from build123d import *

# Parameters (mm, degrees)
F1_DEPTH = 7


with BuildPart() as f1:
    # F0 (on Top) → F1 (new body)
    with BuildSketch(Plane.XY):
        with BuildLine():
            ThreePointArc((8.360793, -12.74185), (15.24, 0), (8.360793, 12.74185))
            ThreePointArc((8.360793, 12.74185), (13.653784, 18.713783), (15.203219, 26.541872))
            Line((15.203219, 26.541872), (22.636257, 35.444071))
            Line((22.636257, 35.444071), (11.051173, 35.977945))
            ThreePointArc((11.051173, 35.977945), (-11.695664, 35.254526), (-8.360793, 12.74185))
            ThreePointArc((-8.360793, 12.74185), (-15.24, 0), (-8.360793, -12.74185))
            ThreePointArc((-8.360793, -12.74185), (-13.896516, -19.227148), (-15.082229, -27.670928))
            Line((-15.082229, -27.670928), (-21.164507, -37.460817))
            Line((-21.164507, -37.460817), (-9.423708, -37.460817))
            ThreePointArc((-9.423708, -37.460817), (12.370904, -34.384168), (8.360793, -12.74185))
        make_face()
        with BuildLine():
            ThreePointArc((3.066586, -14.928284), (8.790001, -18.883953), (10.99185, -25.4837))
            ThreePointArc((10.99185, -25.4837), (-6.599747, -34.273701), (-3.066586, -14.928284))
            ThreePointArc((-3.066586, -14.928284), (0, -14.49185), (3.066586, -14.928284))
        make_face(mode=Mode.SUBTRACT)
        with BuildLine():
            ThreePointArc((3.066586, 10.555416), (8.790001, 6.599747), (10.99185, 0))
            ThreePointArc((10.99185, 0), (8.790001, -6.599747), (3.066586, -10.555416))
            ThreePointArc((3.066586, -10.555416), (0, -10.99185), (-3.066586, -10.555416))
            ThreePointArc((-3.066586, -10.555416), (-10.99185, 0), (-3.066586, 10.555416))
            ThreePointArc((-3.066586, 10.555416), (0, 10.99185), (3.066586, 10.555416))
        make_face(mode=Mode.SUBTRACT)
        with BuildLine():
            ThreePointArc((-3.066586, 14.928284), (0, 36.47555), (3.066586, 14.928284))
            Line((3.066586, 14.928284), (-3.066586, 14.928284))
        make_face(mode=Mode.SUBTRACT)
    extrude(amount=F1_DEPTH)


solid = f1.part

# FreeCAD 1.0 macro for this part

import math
import FreeCAD as App
import Part
import Sketcher

V = App.Vector
Q = App.Units.Quantity

doc = App.newDocument("Part")
body = doc.addObject("PartDesign::Body", "Body")

# Sketch on XY plane
sketch1 = doc.addObject("Sketcher::SketchObject", "Sketch")
body.addObject(sketch1)
sketch1.AttachmentSupport = (doc.XY_Plane, [""])
sketch1.MapMode = "FlatFace"
sketch1.addGeometry([
    Part.ArcOfCircle(Part.Circle(V(0, 0, 0), V(0, 0, 1), 15.24), math.radians(-56.7284), math.radians(56.7284)),  # 0
    Part.ArcOfCircle(Part.Circle(V(-0.000001, 25.4837, 0), V(0, 0, 1), 15.240001), math.radians(-56.728397), math.radians(3.981469)),  # 1
    Part.LineSegment(V(15.203219, 26.541872, 0), V(22.636257, 35.444071, 0)),  # 2
    Part.LineSegment(V(22.636257, 35.444071, 0), V(11.051173, 35.977945, 0)),  # 3
    Part.ArcOfCircle(Part.Circle(V(0, 25.4837, 0), V(0, 0, 1), 15.24), math.radians(43.51929), math.radians(236.728399)),  # 4
    Part.ArcOfCircle(Part.Circle(V(0, 0, 0), V(0, 0, 1), 15.24), math.radians(123.2716), math.radians(236.7284)),  # 5
    Part.ArcOfCircle(Part.Circle(V(0, -25.4837, 0), V(0, 0, 1), 15.24), math.radians(123.2716), math.radians(188.251522)),  # 6
    Part.LineSegment(V(-15.082229, -27.670928, 0), V(-21.164507, -37.460817, 0)),  # 7
    Part.LineSegment(V(-21.164507, -37.460817, 0), V(-9.423708, -37.460817, 0)),  # 8
    Part.ArcOfCircle(Part.Circle(V(0, -25.4837, 0), V(0, 0, 1), 15.24), math.radians(-128.196), math.radians(56.728399)),  # 9
    Part.ArcOfCircle(Part.Circle(V(0, -25.483689, 0), V(0, 0, 1), 10.991839), math.radians(73.800213), math.radians(106.199787)),  # 10
    Part.ArcOfCircle(Part.Circle(V(0.000003, -25.483698, 0), V(0, 0, 1), 10.991847), math.radians(-0.00001), math.radians(73.800243)),  # 11
    Part.ArcOfCircle(Part.Circle(V(0, -25.483701, 0), V(0, 0, 1), 10.99185), math.radians(106.199769), math.radians(360.000003)),  # 12
    Part.ArcOfCircle(Part.Circle(V(0, 0.000011, 0), V(0, 0, 1), 10.991839), math.radians(73.800213), math.radians(106.199787)),  # 13
    Part.ArcOfCircle(Part.Circle(V(0.000003, 0.000002, 0), V(0, 0, 1), 10.991847), math.radians(-0.00001), math.radians(73.800243)),  # 14
    Part.ArcOfCircle(Part.Circle(V(0.000003, -0.000002, 0), V(0, 0, 1), 10.991847), math.radians(-73.800243), math.radians(0.00001)),  # 15
    Part.ArcOfCircle(Part.Circle(V(0, -0.000011, 0), V(0, 0, 1), 10.991839), math.radians(-106.199787), math.radians(-73.800213)),  # 16
    Part.ArcOfCircle(Part.Circle(V(-0.000001, 0, 0), V(0, 0, 1), 10.991849), math.radians(106.199767), math.radians(253.800233)),  # 17
    Part.LineSegment(V(3.066586, 14.928284, 0), V(-3.066586, 14.928284, 0)),  # 18
    Part.ArcOfCircle(Part.Circle(V(0, 25.4837, 0), V(0, 0, 1), 10.99185), math.radians(-73.80023), math.radians(253.80023)),  # 19
], False)
sketch1.addConstraint([
    Sketcher.Constraint("Coincident", 0, 2, 1, 1),
    Sketcher.Constraint("Coincident", 1, 2, 2, 1),
    Sketcher.Constraint("Coincident", 2, 2, 3, 1),
    Sketcher.Constraint("Coincident", 3, 2, 4, 1),
    Sketcher.Constraint("Coincident", 4, 2, 5, 1),
    Sketcher.Constraint("Coincident", 5, 2, 6, 1),
    Sketcher.Constraint("Coincident", 6, 2, 7, 1),
    Sketcher.Constraint("Coincident", 7, 2, 8, 1),
    Sketcher.Constraint("Coincident", 8, 2, 9, 1),
    Sketcher.Constraint("Coincident", 9, 2, 0, 1),
    Sketcher.Constraint("Tangent", 10, 1, 11, 2),
    Sketcher.Constraint("Tangent", 11, 1, 12, 2),
    Sketcher.Constraint("Tangent", 12, 1, 10, 2),
    Sketcher.Constraint("Tangent", 13, 1, 14, 2),
    Sketcher.Constraint("Tangent", 14, 1, 15, 2),
    Sketcher.Constraint("Tangent", 15, 1, 16, 2),
    Sketcher.Constraint("Tangent", 16, 1, 17, 2),
    Sketcher.Constraint("Tangent", 17, 1, 13, 2),
    Sketcher.Constraint("Coincident", 18, 1, 19, 1),
    Sketcher.Constraint("Coincident", 19, 2, 18, 2),
    Sketcher.Constraint("Horizontal", 8),
    Sketcher.Constraint("Horizontal", 18),
    Sketcher.Constraint("Coincident", 0, 3, -1, 1),
    Sketcher.Constraint("Coincident", 5, 3, -1, 1),
    Sketcher.Constraint("Coincident", 14, 3, -1, 1),
    Sketcher.Constraint("Coincident", 17, 3, -1, 1),
    Sketcher.Constraint("Coincident", 4, 3, 1, 3),
    Sketcher.Constraint("Coincident", 9, 3, 6, 3),
    Sketcher.Constraint("Coincident", 11, 3, 6, 3),
    Sketcher.Constraint("Coincident", 19, 3, 1, 3),
    Sketcher.Constraint("Equal", 0, 1),
    Sketcher.Constraint("Equal", 1, 4),
    Sketcher.Constraint("Equal", 4, 5),
    Sketcher.Constraint("Equal", 5, 6),
    Sketcher.Constraint("Equal", 6, 9),
    Sketcher.Constraint("Equal", 10, 13),
    Sketcher.Constraint("Equal", 17, 19),
    Sketcher.Constraint("Symmetric", 1, 3, 6, 3, -1, 1),
    Sketcher.Constraint("Symmetric", 10, 1, 12, 1, -2),
    Sketcher.Constraint("PointOnObject", 14, 1, -1),
    Sketcher.Constraint("Horizontal", 12, 3, 11, 1),
    Sketcher.Constraint("Horizontal", 15, 1, 16, 1),
    Sketcher.Constraint("Horizontal", 13, 1, 17, 1),
    Sketcher.Constraint("Vertical", 10, 1, 13, 1),
    Sketcher.Constraint("Vertical", 13, 1, 15, 1),
    Sketcher.Constraint("Vertical", 15, 1, 18, 1),
    Sketcher.Constraint("Equal", 2, 3),
    Sketcher.Constraint("Radius", 0, Q("0.6 in")),
    Sketcher.Constraint("Radius", 10, 10.991839),
    Sketcher.Constraint("DistanceX", 8, 1, 8, 2, 11.740799),
    Sketcher.Constraint("DistanceY", -1, 1, 1, 3, 25.4837),
    Sketcher.Constraint("DistanceY", 1, 2, 2, 2, 8.902199),
    Sketcher.Constraint("Distance", 2, 11.597379),
    Sketcher.Constraint("Distance", 7, 11.525452),
    Sketcher.Constraint("DistanceX", 18, 2, 18, 1, 6.133172),
    Sketcher.Constraint("DistanceX", -1, 1, 1, 2, 15.203219),
    Sketcher.Constraint("DistanceX", 6, 2, -1, 1, 15.082229),
])
pad1 = doc.addObject("PartDesign::Pad", "Pad")
body.addObject(pad1)
pad1.Profile = sketch1
pad1.Length = 7

doc.recompute()
